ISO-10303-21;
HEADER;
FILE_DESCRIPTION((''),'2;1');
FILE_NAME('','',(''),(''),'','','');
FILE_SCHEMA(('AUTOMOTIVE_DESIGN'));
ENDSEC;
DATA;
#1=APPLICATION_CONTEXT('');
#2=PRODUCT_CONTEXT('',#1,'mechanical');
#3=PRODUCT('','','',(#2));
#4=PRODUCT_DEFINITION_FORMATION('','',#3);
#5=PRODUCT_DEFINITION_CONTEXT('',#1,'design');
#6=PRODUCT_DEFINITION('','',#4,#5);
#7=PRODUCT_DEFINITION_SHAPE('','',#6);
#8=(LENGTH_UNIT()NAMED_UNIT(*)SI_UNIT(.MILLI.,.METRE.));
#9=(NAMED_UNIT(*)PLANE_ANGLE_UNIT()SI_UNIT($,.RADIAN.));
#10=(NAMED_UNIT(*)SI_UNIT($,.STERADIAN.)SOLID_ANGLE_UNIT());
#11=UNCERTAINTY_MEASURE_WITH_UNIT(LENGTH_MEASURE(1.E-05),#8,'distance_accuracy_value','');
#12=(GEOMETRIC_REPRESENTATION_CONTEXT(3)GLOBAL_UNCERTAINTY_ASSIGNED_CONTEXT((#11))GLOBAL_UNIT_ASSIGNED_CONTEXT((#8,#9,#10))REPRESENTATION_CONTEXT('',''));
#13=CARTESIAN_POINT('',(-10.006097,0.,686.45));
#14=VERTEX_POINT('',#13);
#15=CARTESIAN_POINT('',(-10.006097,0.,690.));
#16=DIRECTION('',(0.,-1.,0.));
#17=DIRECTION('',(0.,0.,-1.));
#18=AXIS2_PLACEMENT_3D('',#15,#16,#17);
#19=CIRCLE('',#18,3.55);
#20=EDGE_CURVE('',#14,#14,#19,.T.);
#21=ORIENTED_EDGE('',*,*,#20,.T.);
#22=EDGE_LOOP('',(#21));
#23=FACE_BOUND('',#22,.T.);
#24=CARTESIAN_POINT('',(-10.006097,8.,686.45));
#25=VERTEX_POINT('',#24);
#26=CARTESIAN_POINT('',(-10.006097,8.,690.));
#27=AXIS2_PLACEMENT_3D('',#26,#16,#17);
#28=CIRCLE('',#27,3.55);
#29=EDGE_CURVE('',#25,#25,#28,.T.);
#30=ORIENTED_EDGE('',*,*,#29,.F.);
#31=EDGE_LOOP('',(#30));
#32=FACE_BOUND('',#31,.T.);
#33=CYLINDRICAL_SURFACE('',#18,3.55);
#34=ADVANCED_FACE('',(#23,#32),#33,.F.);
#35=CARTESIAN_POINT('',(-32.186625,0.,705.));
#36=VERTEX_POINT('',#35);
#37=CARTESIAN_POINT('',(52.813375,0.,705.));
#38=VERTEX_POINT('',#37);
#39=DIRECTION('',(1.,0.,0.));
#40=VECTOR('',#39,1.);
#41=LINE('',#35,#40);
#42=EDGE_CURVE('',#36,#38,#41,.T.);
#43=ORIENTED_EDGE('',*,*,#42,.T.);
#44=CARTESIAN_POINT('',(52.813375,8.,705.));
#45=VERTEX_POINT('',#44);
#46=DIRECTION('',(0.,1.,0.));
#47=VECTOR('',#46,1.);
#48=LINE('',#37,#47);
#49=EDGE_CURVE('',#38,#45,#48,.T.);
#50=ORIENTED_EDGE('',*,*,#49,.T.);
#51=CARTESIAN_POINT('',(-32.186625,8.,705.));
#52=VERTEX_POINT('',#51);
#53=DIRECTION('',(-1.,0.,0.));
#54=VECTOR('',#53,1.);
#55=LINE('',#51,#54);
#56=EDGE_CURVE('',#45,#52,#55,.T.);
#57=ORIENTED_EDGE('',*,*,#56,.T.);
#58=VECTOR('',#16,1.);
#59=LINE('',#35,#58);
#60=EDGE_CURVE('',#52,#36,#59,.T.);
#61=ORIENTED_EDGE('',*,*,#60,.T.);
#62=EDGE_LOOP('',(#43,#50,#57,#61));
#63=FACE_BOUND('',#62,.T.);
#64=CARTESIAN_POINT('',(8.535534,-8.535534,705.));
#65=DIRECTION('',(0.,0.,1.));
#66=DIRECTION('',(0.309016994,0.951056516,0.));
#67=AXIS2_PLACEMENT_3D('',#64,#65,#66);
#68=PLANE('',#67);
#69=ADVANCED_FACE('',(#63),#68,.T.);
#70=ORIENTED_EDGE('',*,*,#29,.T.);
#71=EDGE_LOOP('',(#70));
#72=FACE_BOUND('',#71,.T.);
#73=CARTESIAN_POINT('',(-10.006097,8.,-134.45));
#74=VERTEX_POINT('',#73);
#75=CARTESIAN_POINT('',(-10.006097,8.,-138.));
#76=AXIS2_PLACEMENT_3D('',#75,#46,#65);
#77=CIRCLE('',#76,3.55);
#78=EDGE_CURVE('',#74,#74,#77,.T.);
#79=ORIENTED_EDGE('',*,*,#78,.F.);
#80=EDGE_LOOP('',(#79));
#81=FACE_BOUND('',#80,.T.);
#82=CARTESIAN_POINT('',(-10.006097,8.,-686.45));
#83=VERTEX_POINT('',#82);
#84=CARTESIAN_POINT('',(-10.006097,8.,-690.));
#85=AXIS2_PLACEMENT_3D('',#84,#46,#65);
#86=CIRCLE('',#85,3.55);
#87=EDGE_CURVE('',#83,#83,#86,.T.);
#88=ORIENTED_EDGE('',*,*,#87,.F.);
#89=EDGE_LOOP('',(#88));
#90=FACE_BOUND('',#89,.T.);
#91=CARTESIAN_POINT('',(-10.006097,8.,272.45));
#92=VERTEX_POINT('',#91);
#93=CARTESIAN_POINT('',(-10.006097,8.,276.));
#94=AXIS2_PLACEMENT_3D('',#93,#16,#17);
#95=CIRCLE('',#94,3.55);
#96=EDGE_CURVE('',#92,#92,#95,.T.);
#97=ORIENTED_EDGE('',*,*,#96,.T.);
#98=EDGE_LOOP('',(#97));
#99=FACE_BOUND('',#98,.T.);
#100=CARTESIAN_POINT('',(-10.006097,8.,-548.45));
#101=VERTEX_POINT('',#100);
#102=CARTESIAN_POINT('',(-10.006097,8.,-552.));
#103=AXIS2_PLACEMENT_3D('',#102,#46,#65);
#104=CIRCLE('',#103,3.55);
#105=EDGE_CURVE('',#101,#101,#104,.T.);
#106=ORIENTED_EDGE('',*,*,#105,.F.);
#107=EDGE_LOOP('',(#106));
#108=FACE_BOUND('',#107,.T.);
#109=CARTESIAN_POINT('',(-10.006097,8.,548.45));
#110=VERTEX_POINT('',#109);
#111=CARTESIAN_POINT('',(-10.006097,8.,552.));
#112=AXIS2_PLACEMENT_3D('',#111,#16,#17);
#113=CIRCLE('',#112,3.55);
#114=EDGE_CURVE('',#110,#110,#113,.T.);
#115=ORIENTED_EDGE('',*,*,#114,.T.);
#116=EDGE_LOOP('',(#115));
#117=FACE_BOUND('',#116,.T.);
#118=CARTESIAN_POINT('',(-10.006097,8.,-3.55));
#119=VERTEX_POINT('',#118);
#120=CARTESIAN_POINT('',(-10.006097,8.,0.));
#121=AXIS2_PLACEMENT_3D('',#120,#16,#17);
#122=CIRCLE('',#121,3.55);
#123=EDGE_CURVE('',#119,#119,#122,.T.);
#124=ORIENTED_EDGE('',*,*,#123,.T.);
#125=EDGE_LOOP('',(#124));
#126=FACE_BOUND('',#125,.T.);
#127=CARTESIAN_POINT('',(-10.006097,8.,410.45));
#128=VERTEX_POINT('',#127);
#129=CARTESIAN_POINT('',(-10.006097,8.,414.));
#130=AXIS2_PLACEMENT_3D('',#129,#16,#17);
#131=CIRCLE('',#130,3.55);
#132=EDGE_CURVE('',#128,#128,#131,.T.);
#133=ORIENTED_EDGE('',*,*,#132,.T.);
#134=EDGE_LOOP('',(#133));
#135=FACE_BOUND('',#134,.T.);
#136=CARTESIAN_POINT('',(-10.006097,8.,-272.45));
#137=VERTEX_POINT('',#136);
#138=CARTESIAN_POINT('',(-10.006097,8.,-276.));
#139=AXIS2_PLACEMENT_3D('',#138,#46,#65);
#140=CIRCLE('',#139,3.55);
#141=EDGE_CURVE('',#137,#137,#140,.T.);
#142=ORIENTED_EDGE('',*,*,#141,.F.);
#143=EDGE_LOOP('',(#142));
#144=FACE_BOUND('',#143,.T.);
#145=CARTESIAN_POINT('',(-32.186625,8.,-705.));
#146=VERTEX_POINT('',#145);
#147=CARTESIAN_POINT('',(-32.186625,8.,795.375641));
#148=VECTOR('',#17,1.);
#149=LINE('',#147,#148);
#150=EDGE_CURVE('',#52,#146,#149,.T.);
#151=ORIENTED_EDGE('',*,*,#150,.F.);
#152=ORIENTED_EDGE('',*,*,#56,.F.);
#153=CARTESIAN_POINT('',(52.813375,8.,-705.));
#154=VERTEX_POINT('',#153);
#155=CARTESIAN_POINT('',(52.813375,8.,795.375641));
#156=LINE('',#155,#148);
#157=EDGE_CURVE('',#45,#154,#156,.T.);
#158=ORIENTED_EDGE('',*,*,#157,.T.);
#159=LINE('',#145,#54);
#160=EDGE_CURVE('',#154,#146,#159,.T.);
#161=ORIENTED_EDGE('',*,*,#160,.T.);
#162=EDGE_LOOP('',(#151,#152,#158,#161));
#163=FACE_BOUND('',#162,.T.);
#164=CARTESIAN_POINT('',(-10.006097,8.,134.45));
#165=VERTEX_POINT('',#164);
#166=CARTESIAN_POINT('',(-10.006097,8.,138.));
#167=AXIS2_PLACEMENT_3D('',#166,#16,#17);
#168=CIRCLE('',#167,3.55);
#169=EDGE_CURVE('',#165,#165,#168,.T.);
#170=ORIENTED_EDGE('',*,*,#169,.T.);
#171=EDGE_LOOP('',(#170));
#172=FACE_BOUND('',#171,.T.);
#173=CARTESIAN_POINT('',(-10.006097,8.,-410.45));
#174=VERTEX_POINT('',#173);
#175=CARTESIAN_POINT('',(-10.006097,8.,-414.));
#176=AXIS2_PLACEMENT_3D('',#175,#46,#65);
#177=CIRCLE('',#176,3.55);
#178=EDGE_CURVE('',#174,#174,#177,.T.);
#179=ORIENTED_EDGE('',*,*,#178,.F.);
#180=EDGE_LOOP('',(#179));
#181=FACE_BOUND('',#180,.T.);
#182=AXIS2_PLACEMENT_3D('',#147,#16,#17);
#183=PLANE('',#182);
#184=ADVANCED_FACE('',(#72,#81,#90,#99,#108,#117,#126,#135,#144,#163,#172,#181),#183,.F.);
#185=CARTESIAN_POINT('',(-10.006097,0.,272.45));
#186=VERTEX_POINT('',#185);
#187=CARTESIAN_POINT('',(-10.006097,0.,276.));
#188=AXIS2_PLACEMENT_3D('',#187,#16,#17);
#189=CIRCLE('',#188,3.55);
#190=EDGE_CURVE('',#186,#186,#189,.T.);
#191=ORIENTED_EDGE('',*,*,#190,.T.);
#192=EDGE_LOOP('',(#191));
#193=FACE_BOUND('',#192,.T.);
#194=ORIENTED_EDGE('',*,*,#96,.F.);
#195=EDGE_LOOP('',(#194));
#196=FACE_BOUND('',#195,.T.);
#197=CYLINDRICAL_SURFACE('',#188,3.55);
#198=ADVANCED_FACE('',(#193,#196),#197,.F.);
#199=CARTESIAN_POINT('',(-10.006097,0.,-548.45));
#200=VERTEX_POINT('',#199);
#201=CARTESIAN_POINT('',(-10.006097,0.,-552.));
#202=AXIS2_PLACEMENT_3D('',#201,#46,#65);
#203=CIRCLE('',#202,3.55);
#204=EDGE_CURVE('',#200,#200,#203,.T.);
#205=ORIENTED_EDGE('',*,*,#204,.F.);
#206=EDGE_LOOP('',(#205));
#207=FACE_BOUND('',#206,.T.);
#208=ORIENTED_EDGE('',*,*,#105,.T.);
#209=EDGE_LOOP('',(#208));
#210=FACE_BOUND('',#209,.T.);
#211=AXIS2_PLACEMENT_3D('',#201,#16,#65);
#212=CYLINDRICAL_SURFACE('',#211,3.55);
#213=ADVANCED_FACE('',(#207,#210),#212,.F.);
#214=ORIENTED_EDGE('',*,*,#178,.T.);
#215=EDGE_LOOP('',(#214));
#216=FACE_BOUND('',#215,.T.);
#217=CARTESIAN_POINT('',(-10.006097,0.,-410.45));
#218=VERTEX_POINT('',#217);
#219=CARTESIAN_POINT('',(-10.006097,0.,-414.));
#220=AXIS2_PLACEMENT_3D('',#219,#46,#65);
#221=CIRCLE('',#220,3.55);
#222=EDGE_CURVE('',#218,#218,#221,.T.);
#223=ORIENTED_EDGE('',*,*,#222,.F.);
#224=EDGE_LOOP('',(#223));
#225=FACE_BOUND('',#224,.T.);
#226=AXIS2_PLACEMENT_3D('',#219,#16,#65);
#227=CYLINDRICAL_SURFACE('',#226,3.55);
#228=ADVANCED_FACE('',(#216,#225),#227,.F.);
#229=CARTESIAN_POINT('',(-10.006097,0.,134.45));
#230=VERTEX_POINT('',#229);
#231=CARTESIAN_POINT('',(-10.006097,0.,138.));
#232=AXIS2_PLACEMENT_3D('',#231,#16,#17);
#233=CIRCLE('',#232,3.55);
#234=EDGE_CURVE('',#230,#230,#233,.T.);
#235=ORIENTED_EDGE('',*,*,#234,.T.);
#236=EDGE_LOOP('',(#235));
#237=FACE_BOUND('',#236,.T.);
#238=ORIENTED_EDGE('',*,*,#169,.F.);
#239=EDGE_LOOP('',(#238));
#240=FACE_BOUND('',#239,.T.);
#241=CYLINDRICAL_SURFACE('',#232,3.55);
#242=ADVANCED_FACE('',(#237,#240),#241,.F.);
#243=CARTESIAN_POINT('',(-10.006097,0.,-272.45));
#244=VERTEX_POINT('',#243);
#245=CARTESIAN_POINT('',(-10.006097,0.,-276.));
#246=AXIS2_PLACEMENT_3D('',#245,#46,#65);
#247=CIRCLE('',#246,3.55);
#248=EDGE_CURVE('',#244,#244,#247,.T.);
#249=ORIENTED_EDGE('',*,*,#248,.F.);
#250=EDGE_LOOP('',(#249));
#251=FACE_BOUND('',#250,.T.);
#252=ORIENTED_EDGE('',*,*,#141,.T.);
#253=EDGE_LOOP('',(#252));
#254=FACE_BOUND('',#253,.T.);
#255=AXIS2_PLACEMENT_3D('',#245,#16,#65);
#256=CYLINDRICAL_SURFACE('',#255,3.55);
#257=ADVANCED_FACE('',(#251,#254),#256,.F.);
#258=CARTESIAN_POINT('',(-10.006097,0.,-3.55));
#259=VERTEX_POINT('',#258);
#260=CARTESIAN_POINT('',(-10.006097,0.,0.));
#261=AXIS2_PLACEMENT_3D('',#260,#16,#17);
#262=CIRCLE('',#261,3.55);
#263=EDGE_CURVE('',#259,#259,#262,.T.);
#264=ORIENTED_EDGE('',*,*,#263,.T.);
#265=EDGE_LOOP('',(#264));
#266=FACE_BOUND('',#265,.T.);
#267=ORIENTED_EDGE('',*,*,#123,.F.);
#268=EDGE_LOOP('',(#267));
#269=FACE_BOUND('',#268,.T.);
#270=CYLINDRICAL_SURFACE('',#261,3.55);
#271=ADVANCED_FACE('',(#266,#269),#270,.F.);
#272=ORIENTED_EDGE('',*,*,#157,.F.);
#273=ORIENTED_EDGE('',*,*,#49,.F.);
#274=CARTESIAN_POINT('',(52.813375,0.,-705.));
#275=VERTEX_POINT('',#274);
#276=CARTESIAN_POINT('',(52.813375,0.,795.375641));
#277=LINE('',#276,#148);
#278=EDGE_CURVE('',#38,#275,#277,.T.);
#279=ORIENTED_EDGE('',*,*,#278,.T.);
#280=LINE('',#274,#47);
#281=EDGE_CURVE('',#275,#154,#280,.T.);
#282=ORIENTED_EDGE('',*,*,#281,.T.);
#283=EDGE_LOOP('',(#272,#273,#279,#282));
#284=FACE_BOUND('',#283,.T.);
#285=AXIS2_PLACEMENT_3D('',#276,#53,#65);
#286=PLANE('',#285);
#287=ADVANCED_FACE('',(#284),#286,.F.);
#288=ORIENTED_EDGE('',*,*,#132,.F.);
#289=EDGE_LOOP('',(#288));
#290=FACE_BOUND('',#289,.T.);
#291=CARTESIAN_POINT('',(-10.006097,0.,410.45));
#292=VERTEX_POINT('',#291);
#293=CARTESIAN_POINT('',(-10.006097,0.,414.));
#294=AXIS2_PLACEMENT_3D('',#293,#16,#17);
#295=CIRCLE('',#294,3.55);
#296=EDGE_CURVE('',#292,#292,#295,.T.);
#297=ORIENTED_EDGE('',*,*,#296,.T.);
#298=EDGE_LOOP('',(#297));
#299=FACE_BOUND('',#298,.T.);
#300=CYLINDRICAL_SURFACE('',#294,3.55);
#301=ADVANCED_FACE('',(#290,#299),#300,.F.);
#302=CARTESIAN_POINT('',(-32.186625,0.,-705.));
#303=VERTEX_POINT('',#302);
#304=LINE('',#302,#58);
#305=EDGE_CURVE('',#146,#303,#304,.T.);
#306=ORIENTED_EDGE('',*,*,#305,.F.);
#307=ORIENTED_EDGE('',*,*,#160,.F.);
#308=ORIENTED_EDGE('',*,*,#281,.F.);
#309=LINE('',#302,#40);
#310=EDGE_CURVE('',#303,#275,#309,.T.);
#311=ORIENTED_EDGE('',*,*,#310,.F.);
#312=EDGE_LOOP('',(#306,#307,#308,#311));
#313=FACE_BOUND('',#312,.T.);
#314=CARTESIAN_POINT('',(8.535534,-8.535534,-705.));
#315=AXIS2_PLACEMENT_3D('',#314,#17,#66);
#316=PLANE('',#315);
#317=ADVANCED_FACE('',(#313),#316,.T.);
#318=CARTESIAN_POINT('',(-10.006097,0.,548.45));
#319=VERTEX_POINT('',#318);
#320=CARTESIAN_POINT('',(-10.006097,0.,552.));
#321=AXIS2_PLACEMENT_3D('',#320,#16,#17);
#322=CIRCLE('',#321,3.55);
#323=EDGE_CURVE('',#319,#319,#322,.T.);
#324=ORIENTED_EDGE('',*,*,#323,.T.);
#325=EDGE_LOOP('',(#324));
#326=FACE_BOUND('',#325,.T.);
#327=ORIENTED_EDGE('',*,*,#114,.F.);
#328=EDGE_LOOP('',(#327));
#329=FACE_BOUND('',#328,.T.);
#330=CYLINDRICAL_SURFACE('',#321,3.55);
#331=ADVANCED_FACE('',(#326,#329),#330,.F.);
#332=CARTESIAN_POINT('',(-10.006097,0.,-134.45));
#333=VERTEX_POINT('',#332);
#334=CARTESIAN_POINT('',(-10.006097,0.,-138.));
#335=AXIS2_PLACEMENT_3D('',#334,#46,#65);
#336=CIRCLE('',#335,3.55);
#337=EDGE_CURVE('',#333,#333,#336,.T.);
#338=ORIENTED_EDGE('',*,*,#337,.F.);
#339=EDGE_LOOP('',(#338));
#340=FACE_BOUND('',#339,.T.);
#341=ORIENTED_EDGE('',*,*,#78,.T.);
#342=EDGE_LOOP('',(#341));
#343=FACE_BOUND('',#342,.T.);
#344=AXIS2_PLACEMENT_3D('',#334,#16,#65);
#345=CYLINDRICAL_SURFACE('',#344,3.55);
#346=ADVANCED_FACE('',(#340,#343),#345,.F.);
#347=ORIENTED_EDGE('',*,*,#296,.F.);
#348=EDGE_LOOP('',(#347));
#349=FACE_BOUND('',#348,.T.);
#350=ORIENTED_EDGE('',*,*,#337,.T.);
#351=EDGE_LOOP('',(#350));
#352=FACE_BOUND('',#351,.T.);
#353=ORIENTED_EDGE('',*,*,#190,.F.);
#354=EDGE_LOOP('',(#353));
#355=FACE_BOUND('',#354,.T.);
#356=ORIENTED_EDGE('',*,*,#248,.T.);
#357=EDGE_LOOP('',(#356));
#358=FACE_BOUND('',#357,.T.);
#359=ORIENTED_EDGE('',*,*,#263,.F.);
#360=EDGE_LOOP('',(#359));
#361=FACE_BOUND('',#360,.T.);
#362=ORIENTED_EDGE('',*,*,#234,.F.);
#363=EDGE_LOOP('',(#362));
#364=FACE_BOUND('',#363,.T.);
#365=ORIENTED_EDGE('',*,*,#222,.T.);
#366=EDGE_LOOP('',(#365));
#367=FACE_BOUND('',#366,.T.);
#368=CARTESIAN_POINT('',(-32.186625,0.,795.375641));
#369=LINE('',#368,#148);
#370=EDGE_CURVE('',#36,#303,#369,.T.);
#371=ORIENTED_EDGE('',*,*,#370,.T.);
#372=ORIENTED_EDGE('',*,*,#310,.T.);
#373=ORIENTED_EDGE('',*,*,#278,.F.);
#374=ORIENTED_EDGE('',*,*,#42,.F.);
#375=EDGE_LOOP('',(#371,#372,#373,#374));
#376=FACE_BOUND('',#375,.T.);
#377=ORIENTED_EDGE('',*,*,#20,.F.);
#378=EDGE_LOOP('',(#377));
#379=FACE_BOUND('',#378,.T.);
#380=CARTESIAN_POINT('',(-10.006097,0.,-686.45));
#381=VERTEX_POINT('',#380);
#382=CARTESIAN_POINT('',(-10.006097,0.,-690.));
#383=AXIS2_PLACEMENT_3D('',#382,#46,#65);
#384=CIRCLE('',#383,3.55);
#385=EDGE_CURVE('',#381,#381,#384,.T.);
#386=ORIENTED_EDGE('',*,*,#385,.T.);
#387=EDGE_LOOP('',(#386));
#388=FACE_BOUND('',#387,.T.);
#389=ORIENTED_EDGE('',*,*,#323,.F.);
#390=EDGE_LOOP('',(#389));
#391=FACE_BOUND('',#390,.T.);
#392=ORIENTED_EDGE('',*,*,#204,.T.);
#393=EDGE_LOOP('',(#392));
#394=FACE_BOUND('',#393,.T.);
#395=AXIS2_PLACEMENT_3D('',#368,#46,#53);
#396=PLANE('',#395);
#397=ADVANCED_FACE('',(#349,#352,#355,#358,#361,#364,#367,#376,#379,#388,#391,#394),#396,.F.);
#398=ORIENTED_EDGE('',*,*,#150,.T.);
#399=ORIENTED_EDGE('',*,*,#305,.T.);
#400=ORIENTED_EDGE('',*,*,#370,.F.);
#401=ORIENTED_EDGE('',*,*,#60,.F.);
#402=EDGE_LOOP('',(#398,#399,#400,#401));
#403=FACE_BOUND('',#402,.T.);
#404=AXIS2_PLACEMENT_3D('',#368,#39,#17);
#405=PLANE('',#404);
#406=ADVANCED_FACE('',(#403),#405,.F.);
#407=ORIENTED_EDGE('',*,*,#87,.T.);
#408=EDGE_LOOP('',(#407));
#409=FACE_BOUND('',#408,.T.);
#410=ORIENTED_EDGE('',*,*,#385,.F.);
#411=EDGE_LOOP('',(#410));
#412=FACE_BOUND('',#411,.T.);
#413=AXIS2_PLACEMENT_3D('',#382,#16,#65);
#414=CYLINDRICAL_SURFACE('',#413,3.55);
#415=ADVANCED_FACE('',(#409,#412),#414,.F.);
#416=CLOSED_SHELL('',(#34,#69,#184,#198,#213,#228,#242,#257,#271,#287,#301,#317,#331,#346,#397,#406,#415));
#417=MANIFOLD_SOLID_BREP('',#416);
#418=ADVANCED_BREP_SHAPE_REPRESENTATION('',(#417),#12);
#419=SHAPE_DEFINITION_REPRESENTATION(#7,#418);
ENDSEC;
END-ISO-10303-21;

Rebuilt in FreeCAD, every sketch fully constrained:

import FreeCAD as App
import Part
import Sketcher
Q = App.Units.Quantity


def add_polygon(sketch, points):
    """Adds a closed chain of lines whose ends are joined by coincident constraints."""
    first, n = sketch.GeometryCount, len(points)
    for a, b in zip(points, points[1:] + points[:1]):
        sketch.addGeometry(Part.LineSegment(App.Vector(*a, 0), App.Vector(*b, 0)), False)
    for i in range(n):
        sketch.addConstraint(Sketcher.Constraint("Coincident", first + i, 2, first + (i + 1) % n, 1))

doc = App.newDocument("Part")
body = doc.addObject("PartDesign::Body", "Body")

# Sketch on XY plane
sketch1 = doc.addObject("Sketcher::SketchObject", "Sketch")
body.addObject(sketch1)
sketch1.AttachmentSupport = (doc.XY_Plane, [""])
sketch1.MapMode = "FlatFace"
add_polygon(sketch1, [(-32, 8), (-32, 0), (53, 0), (53, 8)])  # lines 0-3
sketch1.addConstraint(Sketcher.Constraint("Vertical", 0))
sketch1.addConstraint(Sketcher.Constraint("Horizontal", 1))
sketch1.addConstraint(Sketcher.Constraint("Vertical", 2))
sketch1.addConstraint(Sketcher.Constraint("Horizontal", 3))
sketch1.addConstraint(Sketcher.Constraint("PointOnObject", 0, 2, -1))
sketch1.addConstraint(Sketcher.Constraint("DistanceX", 1, 1, 1, 2, Q("85 mm")))
sketch1.addConstraint(Sketcher.Constraint("DistanceY", 0, 2, 0, 1, Q("8 mm")))
sketch1.addConstraint(Sketcher.Constraint("DistanceX", 0, 2, -1, 1, Q("32.186625 mm")))
pad1 = doc.addObject("PartDesign::Pad", "Pad")
body.addObject(pad1)
pad1.Profile = sketch1
pad1.Length = 705

# Sketch on XZ plane
sketch2 = doc.addObject("Sketcher::SketchObject", "Sketch001")
body.addObject(sketch2)
sketch2.AttachmentSupport = (doc.XZ_Plane, [""])
sketch2.MapMode = "FlatFace"
sketch2.addGeometry(Part.Circle(App.Vector(-10, 690, 0), App.Vector(0, 0, 1), 3.5), False)
sketch2.addGeometry(Part.Circle(App.Vector(-10, 552, 0), App.Vector(0, 0, 1), 3.5), False)
sketch2.addGeometry(Part.Circle(App.Vector(-10, 414, 0), App.Vector(0, 0, 1), 3.5), False)
sketch2.addGeometry(Part.Circle(App.Vector(-10, 138, 0), App.Vector(0, 0, 1), 3.5), False)
sketch2.addGeometry(Part.Circle(App.Vector(-10, 0, 0), App.Vector(0, 0, 1), 3.5), False)
sketch2.addGeometry(Part.Circle(App.Vector(-10, 276, 0), App.Vector(0, 0, 1), 3.5), False)
sketch2.addConstraint(Sketcher.Constraint("Equal", 0, 1))
sketch2.addConstraint(Sketcher.Constraint("Equal", 1, 2))
sketch2.addConstraint(Sketcher.Constraint("Equal", 2, 3))
sketch2.addConstraint(Sketcher.Constraint("Equal", 3, 4))
sketch2.addConstraint(Sketcher.Constraint("Equal", 4, 5))
sketch2.addConstraint(Sketcher.Constraint("PointOnObject", 4, 3, -1))
sketch2.addConstraint(Sketcher.Constraint("Vertical", 0, 3, 1, 3))
sketch2.addConstraint(Sketcher.Constraint("Vertical", 1, 3, 2, 3))
sketch2.addConstraint(Sketcher.Constraint("Vertical", 2, 3, 3, 3))
sketch2.addConstraint(Sketcher.Constraint("Vertical", 3, 3, 4, 3))
sketch2.addConstraint(Sketcher.Constraint("Vertical", 4, 3, 5, 3))
sketch2.addConstraint(Sketcher.Constraint("Diameter", 0, Q("7.1 mm")))
sketch2.addConstraint(Sketcher.Constraint("DistanceY", -1, 1, 0, 3, Q("690 mm")))
sketch2.addConstraint(Sketcher.Constraint("DistanceY", -1, 1, 1, 3, Q("552 mm")))
sketch2.addConstraint(Sketcher.Constraint("DistanceY", -1, 1, 2, 3, Q("414 mm")))
sketch2.addConstraint(Sketcher.Constraint("DistanceY", -1, 1, 3, 3, Q("138 mm")))
sketch2.addConstraint(Sketcher.Constraint("DistanceY", -1, 1, 5, 3, Q("276 mm")))
sketch2.addConstraint(Sketcher.Constraint("DistanceX", 0, 3, -1, 1, Q("10.006097 mm")))
doc.recompute()
hole = doc.addObject("PartDesign::Hole", "Hole")
body.addObject(hole)
hole.Profile = sketch2
hole.ThreadType = "None"
hole.Diameter = 7.1
hole.DepthType = "ThroughAll"
body2 = doc.addObject("PartDesign::Body", "Body001")
doc.recompute()

body2.BaseFeature = body
doc.recompute()

mirroring = doc.addObject("Part::Mirroring", "Mirroring")
mirroring.Source = body
mirroring.Base = App.Vector(0, 0, 0)
mirroring.Normal = App.Vector(0, 0, -1)
body3 = doc.addObject("PartDesign::Body", "Body002")
body3.BaseFeature = mirroring
boolean = doc.addObject("PartDesign::Boolean", "Boolean")
body2.addObject(boolean)
boolean.Type = "Fuse"
boolean.addObjects([body3])
doc.recompute()
mirroring.Visibility = False

doc.recompute()
